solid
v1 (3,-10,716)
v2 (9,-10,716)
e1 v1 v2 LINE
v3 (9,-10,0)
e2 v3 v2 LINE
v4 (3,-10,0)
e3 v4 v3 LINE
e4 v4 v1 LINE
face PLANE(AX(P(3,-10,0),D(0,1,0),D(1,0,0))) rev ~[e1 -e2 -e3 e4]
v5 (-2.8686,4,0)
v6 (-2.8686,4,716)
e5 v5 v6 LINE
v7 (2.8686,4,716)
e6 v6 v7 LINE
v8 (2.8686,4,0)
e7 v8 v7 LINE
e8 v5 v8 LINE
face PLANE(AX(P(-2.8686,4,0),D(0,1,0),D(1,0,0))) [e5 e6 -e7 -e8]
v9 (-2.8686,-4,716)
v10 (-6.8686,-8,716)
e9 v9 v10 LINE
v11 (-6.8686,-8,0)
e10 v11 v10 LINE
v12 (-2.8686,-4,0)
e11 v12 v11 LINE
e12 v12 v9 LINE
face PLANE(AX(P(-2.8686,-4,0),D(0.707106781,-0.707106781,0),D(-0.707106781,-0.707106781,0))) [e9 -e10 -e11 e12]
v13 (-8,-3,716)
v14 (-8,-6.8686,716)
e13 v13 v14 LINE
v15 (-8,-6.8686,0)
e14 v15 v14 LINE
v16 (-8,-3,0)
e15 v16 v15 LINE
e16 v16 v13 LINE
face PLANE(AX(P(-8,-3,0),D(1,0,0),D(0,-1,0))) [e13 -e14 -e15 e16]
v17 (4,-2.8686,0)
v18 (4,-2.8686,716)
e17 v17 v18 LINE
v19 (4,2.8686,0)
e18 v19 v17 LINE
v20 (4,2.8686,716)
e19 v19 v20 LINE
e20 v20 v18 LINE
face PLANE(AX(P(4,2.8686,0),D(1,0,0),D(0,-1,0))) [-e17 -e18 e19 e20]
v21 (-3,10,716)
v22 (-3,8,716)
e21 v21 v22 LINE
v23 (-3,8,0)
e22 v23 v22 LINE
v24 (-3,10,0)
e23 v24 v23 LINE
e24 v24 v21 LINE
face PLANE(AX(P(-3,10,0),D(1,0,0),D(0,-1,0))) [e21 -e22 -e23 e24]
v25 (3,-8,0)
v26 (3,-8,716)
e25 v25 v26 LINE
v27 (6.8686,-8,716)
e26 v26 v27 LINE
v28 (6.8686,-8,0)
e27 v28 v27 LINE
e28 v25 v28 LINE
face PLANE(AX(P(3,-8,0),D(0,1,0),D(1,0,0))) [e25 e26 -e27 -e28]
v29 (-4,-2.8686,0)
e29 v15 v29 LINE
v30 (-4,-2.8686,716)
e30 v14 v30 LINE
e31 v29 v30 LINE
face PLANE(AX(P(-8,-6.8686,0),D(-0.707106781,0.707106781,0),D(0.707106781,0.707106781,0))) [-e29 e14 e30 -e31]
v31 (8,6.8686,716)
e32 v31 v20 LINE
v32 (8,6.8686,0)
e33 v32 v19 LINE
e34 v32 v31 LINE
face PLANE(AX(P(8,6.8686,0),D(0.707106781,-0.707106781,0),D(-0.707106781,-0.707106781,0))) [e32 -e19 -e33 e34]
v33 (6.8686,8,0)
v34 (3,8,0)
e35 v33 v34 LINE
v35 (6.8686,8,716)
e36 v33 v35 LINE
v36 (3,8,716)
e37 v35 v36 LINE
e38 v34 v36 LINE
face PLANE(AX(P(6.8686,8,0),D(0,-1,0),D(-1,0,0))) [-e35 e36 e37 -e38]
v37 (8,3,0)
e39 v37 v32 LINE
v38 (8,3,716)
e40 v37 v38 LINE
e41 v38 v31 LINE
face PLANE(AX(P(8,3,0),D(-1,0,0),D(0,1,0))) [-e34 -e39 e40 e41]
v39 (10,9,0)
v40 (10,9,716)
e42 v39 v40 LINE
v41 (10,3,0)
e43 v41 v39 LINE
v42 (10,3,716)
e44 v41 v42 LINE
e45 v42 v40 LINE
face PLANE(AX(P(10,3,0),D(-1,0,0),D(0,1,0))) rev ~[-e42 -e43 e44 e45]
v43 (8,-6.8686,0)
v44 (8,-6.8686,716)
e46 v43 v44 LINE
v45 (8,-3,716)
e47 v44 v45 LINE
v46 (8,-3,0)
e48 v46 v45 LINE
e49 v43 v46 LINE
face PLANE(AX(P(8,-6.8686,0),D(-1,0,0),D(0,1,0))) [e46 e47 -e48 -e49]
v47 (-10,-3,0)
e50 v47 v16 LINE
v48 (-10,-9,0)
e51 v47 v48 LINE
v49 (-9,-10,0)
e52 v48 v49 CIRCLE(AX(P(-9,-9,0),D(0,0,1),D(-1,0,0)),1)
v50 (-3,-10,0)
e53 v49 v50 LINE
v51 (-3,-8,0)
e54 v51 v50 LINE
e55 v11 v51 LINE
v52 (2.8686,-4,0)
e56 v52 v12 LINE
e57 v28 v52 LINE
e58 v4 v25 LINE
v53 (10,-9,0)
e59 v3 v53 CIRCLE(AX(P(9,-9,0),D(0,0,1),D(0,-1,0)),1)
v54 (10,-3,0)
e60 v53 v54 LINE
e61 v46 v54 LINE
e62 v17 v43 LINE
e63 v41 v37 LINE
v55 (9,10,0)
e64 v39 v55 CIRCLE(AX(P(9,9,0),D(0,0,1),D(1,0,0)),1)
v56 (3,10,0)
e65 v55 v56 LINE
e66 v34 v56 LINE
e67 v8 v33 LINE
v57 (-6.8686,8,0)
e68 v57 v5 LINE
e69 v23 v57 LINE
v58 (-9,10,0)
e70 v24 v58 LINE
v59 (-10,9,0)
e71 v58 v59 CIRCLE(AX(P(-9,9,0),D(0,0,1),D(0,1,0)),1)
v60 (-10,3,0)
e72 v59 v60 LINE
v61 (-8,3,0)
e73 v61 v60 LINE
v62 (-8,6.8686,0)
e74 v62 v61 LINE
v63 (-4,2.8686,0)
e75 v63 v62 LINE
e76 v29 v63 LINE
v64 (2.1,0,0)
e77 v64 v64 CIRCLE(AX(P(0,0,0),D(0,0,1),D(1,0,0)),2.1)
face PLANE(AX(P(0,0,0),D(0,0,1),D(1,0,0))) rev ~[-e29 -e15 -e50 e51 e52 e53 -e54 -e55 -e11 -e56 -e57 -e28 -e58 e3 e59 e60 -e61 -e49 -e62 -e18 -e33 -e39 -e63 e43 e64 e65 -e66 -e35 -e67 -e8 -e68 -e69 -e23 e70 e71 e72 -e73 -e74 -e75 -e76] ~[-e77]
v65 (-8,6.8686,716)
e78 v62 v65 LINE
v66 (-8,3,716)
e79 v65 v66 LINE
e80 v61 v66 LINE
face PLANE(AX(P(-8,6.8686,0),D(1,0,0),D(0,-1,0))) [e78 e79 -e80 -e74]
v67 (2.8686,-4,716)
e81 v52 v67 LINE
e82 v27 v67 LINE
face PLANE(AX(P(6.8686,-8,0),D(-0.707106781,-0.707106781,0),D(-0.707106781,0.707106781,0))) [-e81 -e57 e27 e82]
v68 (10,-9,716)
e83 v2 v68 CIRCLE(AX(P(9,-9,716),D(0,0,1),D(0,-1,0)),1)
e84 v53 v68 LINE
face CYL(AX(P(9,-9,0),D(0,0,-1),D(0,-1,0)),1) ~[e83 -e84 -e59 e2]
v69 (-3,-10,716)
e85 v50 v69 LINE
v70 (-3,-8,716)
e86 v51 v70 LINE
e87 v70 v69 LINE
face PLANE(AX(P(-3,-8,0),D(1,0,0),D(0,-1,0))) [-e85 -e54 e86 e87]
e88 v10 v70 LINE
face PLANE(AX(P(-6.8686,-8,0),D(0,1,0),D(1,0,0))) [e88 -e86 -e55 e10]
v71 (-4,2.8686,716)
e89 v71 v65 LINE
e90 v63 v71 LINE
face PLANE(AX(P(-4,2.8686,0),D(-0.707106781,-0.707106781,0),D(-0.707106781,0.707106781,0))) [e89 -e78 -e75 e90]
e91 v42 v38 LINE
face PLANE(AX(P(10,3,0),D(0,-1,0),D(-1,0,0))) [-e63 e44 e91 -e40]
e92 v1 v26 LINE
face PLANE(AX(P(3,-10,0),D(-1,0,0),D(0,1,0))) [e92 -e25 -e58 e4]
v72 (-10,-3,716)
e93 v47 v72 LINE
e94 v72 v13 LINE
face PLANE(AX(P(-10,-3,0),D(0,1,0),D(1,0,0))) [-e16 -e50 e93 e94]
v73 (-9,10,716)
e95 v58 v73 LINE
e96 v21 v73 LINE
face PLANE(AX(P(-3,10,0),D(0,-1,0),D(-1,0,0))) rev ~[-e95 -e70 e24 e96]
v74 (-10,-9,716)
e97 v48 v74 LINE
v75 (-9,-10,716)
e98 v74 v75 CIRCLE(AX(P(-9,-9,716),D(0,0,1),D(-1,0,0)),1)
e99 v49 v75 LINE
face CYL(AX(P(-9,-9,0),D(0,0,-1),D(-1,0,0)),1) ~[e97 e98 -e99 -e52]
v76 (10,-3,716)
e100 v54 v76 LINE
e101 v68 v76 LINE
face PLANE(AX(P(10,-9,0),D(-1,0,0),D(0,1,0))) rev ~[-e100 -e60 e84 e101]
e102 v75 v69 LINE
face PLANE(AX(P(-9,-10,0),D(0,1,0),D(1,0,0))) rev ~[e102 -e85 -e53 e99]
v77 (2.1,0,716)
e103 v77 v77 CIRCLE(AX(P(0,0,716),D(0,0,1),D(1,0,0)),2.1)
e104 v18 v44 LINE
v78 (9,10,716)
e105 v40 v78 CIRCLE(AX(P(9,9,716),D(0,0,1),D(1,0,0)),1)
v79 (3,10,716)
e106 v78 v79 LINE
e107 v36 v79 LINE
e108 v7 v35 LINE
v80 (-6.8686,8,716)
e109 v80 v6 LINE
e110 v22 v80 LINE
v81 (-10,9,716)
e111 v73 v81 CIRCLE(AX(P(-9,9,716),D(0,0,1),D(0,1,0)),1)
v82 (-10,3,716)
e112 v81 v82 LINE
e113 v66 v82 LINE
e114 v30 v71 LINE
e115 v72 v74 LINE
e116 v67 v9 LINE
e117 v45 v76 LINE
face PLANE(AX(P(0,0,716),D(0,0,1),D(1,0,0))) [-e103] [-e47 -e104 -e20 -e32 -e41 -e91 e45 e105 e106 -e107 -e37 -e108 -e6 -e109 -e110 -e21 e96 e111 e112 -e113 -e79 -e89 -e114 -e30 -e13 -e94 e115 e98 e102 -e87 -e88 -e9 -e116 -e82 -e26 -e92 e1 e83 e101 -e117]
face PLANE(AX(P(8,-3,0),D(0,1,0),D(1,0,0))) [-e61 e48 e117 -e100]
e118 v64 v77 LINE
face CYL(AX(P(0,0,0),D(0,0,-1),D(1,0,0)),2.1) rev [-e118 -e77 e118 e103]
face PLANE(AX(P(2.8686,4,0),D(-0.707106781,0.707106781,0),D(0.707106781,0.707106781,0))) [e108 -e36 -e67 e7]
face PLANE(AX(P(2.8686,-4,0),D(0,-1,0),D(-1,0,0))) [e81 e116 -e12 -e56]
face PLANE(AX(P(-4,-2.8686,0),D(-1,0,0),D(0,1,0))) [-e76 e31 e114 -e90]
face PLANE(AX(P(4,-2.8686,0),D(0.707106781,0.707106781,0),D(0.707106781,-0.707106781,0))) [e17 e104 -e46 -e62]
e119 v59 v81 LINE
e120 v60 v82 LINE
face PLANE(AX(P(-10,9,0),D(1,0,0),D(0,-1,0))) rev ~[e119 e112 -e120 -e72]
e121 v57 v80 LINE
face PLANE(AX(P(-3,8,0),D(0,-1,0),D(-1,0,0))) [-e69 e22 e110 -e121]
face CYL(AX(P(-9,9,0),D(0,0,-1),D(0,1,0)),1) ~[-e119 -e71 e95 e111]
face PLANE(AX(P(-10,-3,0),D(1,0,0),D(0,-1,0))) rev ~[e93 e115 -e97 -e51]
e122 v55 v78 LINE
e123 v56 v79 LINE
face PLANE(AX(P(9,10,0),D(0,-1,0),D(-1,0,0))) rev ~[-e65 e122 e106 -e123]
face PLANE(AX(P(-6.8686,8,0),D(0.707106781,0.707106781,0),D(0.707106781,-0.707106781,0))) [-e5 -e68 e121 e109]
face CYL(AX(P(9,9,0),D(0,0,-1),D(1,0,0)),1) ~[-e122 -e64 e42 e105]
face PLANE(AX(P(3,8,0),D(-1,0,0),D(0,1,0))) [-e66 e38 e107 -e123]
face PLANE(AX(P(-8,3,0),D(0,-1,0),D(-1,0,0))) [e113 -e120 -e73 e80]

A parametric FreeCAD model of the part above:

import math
import FreeCAD as App
import Part
import Sketcher

V = App.Vector

doc = App.newDocument("Part")
params = doc.addObject("Spreadsheet::Sheet", "Params")
for row, (alias, value) in enumerate([
    ("sketch1_radius", "1 mm"),
    ("sketch1_diameter", "4.2 mm"),
    ("sketch1_width", "2 mm"),
    ("sketch1_width2", "6 mm"),
    ("pad1_length", "716 mm"),
], start=1):
    params.set(f"A{row}", alias)
    params.set(f"B{row}", "=" + value)
    params.setAlias(f"B{row}", alias)

body = doc.addObject("PartDesign::Body", "Body")

# Sketch on XY plane
sketch1 = body.newObject("Sketcher::SketchObject", "Sketch")
sketch1.AttachmentSupport = (doc.getObject("XY_Plane"), [""])
sketch1.MapMode = "FlatFace"
sketch1.addGeometry([
    Part.LineSegment(V(8, 3, 0), V(10, 3, 0)),  # 0
    Part.LineSegment(V(10, 3, 0), V(10, 9, 0)),  # 1
    Part.ArcOfCircle(Part.Circle(V(9, 9, 0), V(0, 0, 1), 1), math.radians(0), math.radians(90)),  # 2
    Part.LineSegment(V(9, 10, 0), V(3, 10, 0)),  # 3
    Part.LineSegment(V(3, 10, 0), V(3, 8, 0)),  # 4
    Part.LineSegment(V(3, 8, 0), V(6.8686, 8, 0)),  # 5
    Part.LineSegment(V(6.8686, 8, 0), V(2.8686, 4, 0)),  # 6
    Part.LineSegment(V(2.8686, 4, 0), V(-2.8686, 4, 0)),  # 7
    Part.LineSegment(V(-2.8686, 4, 0), V(-6.8686, 8, 0)),  # 8
    Part.LineSegment(V(-6.8686, 8, 0), V(-3, 8, 0)),  # 9
    Part.LineSegment(V(-3, 8, 0), V(-3, 10, 0)),  # 10
    Part.LineSegment(V(-3, 10, 0), V(-9, 10, 0)),  # 11
    Part.ArcOfCircle(Part.Circle(V(-9, 9, 0), V(0, 0, 1), 1), math.radians(90), math.radians(180)),  # 12
    Part.LineSegment(V(-10, 9, 0), V(-10, 3, 0)),  # 13
    Part.LineSegment(V(-10, 3, 0), V(-8, 3, 0)),  # 14
    Part.LineSegment(V(-8, 3, 0), V(-8, 6.8686, 0)),  # 15
    Part.LineSegment(V(-8, 6.8686, 0), V(-4, 2.8686, 0)),  # 16
    Part.LineSegment(V(-4, 2.8686, 0), V(-4, -2.8686, 0)),  # 17
    Part.LineSegment(V(-4, -2.8686, 0), V(-8, -6.8686, 0)),  # 18
    Part.LineSegment(V(-8, -6.8686, 0), V(-8, -3, 0)),  # 19
    Part.LineSegment(V(-8, -3, 0), V(-10, -3, 0)),  # 20
    Part.LineSegment(V(-10, -3, 0), V(-10, -9, 0)),  # 21
    Part.ArcOfCircle(Part.Circle(V(-9, -9, 0), V(0, 0, 1), 1), math.radians(180), math.radians(270)),  # 22
    Part.LineSegment(V(-9, -10, 0), V(-3, -10, 0)),  # 23
    Part.LineSegment(V(-3, -10, 0), V(-3, -8, 0)),  # 24
    Part.LineSegment(V(-3, -8, 0), V(-6.8686, -8, 0)),  # 25
    Part.LineSegment(V(-6.8686, -8, 0), V(-2.8686, -4, 0)),  # 26
    Part.LineSegment(V(-2.8686, -4, 0), V(2.8686, -4, 0)),  # 27
    Part.LineSegment(V(2.8686, -4, 0), V(6.8686, -8, 0)),  # 28
    Part.LineSegment(V(6.8686, -8, 0), V(3, -8, 0)),  # 29
    Part.LineSegment(V(3, -8, 0), V(3, -10, 0)),  # 30
    Part.LineSegment(V(3, -10, 0), V(9, -10, 0)),  # 31
    Part.ArcOfCircle(Part.Circle(V(9, -9, 0), V(0, 0, 1), 1), math.radians(-90), math.radians(0)),  # 32
    Part.LineSegment(V(10, -9, 0), V(10, -3, 0)),  # 33
    Part.LineSegment(V(10, -3, 0), V(8, -3, 0)),  # 34
    Part.LineSegment(V(8, -3, 0), V(8, -6.8686, 0)),  # 35
    Part.LineSegment(V(8, -6.8686, 0), V(4, -2.8686, 0)),  # 36
    Part.LineSegment(V(4, -2.8686, 0), V(4, 2.8686, 0)),  # 37
    Part.LineSegment(V(4, 2.8686, 0), V(8, 6.8686, 0)),  # 38
    Part.LineSegment(V(8, 6.8686, 0), V(8, 3, 0)),  # 39
    Part.Circle(V(0, 0, 0), V(0, 0, 1), 2.1),  # 40
], False)
sketch1.addConstraint([
    Sketcher.Constraint("Coincident", 0, 2, 1, 1),
    Sketcher.Constraint("Tangent", 1, 2, 2, 1),
    Sketcher.Constraint("Tangent", 2, 2, 3, 1),
    Sketcher.Constraint("Coincident", 3, 2, 4, 1),
    Sketcher.Constraint("Coincident", 4, 2, 5, 1),
    Sketcher.Constraint("Coincident", 5, 2, 6, 1),
    Sketcher.Constraint("Coincident", 6, 2, 7, 1),
    Sketcher.Constraint("Coincident", 7, 2, 8, 1),
    Sketcher.Constraint("Coincident", 8, 2, 9, 1),
    Sketcher.Constraint("Coincident", 9, 2, 10, 1),
    Sketcher.Constraint("Coincident", 10, 2, 11, 1),
    Sketcher.Constraint("Tangent", 11, 2, 12, 1),
    Sketcher.Constraint("Tangent", 12, 2, 13, 1),
    Sketcher.Constraint("Coincident", 13, 2, 14, 1),
    Sketcher.Constraint("Coincident", 14, 2, 15, 1),
    Sketcher.Constraint("Coincident", 15, 2, 16, 1),
    Sketcher.Constraint("Coincident", 16, 2, 17, 1),
    Sketcher.Constraint("Coincident", 17, 2, 18, 1),
    Sketcher.Constraint("Coincident", 18, 2, 19, 1),
    Sketcher.Constraint("Coincident", 19, 2, 20, 1),
    Sketcher.Constraint("Coincident", 20, 2, 21, 1),
    Sketcher.Constraint("Tangent", 21, 2, 22, 1),
    Sketcher.Constraint("Tangent", 22, 2, 23, 1),
    Sketcher.Constraint("Coincident", 23, 2, 24, 1),
    Sketcher.Constraint("Coincident", 24, 2, 25, 1),
    Sketcher.Constraint("Coincident", 25, 2, 26, 1),
    Sketcher.Constraint("Coincident", 26, 2, 27, 1),
    Sketcher.Constraint("Coincident", 27, 2, 28, 1),
    Sketcher.Constraint("Coincident", 28, 2, 29, 1),
    Sketcher.Constraint("Coincident", 29, 2, 30, 1),
    Sketcher.Constraint("Coincident", 30, 2, 31, 1),
    Sketcher.Constraint("Tangent", 31, 2, 32, 1),
    Sketcher.Constraint("Tangent", 32, 2, 33, 1),
    Sketcher.Constraint("Coincident", 33, 2, 34, 1),
    Sketcher.Constraint("Coincident", 34, 2, 35, 1),
    Sketcher.Constraint("Coincident", 35, 2, 36, 1),
    Sketcher.Constraint("Coincident", 36, 2, 37, 1),
    Sketcher.Constraint("Coincident", 37, 2, 38, 1),
    Sketcher.Constraint("Coincident", 38, 2, 39, 1),
    Sketcher.Constraint("Coincident", 39, 2, 0, 1),
    Sketcher.Constraint("Horizontal", 0),
    Sketcher.Constraint("Vertical", 1),
    Sketcher.Constraint("Horizontal", 3),
    Sketcher.Constraint("Vertical", 4),
    Sketcher.Constraint("Horizontal", 5),
    Sketcher.Constraint("Horizontal", 7),
    Sketcher.Constraint("Horizontal", 9),
    Sketcher.Constraint("Vertical", 10),
    Sketcher.Constraint("Horizontal", 11),
    Sketcher.Constraint("Vertical", 13),
    Sketcher.Constraint("Horizontal", 14),
    Sketcher.Constraint("Vertical", 15),
    Sketcher.Constraint("Vertical", 17),
    Sketcher.Constraint("Vertical", 19),
    Sketcher.Constraint("Horizontal", 20),
    Sketcher.Constraint("Vertical", 21),
    Sketcher.Constraint("Horizontal", 23),
    Sketcher.Constraint("Vertical", 24),
    Sketcher.Constraint("Horizontal", 25),
    Sketcher.Constraint("Horizontal", 27),
    Sketcher.Constraint("Horizontal", 29),
    Sketcher.Constraint("Vertical", 30),
    Sketcher.Constraint("Horizontal", 31),
    Sketcher.Constraint("Vertical", 33),
    Sketcher.Constraint("Horizontal", 34),
    Sketcher.Constraint("Vertical", 35),
    Sketcher.Constraint("Vertical", 37),
    Sketcher.Constraint("Vertical", 39),
    Sketcher.Constraint("Coincident", 40, 3, -1, 1),
    Sketcher.Constraint("Equal", 2, 12),
    Sketcher.Constraint("Equal", 12, 22),
    Sketcher.Constraint("Equal", 22, 32),
    Sketcher.Constraint("Symmetric", 2, 3, 22, 3, -1, 1),
    Sketcher.Constraint("Symmetric", 12, 3, 32, 3, -1, 1),
    Sketcher.Constraint("Symmetric", 4, 2, 24, 2, -1, 1),
    Sketcher.Constraint("Symmetric", 6, 2, 26, 2, -1, 1),
    Sketcher.Constraint("Symmetric", 8, 2, 28, 2, -1, 1),
    Sketcher.Constraint("Symmetric", 14, 2, 34, 2, -1, 1),
    Sketcher.Constraint("Symmetric", 16, 2, 36, 2, -1, 1),
    Sketcher.Constraint("Symmetric", 18, 2, 38, 2, -1, 1),
    Sketcher.Constraint("Symmetric", 2, 3, 12, 3, -2),
    Sketcher.Constraint("Symmetric", 5, 2, 8, 2, -2),
    Sketcher.Constraint("Symmetric", 19, 2, 34, 2, -2),
    Sketcher.Constraint("Perpendicular", 6, 8),
    Sketcher.Constraint("Parallel", 8, 16),
    Sketcher.Constraint("Perpendicular", 16, 18),
    Sketcher.Constraint("Parallel", 18, 26),
    Sketcher.Constraint("Perpendicular", 26, 28),
    Sketcher.Constraint("Parallel", 28, 36),
    Sketcher.Constraint("Perpendicular", 36, 38),
    Sketcher.Constraint("Horizontal", 0, 2, 13, 2),
    Sketcher.Constraint("Horizontal", 18, 2, 35, 2),
    Sketcher.Constraint("Horizontal", 17, 2, 36, 2),
    Sketcher.Constraint("Vertical", 10, 2, 23, 2),
    Sketcher.Constraint("Vertical", 4, 2, 29, 2),
    Sketcher.Constraint("Equal", 31, 1),
    Sketcher.Constraint("Equal", 34, 4),
    Sketcher.Constraint("Equal", 29, 15),
    Sketcher.Constraint("Equal", 27, 17),
    Sketcher.Constraint("Equal", 8, 16),
    Sketcher.Constraint("Radius", 2, 1.0),
    Sketcher.Constraint("Diameter", 40, 4.2),
    Sketcher.Constraint("DistanceX", 0, 1, 0, 2, 2.0),
    Sketcher.Constraint("DistanceX", 3, 2, 3, 1, 6.0),
    Sketcher.Constraint("DistanceY", -1, 1, 6, 2, 4.0),
    Sketcher.Constraint("DistanceY", 6, 2, 4, 2, 4.0),
    Sketcher.Constraint("DistanceX", 5, 1, 5, 2, 3.8686),
])
sketch1.setExpression("Constraints[100]", "Params.sketch1_radius")
sketch1.setExpression("Constraints[101]", "Params.sketch1_diameter")
sketch1.setExpression("Constraints[102]", "Params.sketch1_width")
sketch1.setExpression("Constraints[103]", "Params.sketch1_width2")
pad1 = body.newObject("PartDesign::Pad", "Pad")
pad1.Profile = sketch1
pad1.setExpression("Length", "Params.pad1_length")

doc.recompute()
